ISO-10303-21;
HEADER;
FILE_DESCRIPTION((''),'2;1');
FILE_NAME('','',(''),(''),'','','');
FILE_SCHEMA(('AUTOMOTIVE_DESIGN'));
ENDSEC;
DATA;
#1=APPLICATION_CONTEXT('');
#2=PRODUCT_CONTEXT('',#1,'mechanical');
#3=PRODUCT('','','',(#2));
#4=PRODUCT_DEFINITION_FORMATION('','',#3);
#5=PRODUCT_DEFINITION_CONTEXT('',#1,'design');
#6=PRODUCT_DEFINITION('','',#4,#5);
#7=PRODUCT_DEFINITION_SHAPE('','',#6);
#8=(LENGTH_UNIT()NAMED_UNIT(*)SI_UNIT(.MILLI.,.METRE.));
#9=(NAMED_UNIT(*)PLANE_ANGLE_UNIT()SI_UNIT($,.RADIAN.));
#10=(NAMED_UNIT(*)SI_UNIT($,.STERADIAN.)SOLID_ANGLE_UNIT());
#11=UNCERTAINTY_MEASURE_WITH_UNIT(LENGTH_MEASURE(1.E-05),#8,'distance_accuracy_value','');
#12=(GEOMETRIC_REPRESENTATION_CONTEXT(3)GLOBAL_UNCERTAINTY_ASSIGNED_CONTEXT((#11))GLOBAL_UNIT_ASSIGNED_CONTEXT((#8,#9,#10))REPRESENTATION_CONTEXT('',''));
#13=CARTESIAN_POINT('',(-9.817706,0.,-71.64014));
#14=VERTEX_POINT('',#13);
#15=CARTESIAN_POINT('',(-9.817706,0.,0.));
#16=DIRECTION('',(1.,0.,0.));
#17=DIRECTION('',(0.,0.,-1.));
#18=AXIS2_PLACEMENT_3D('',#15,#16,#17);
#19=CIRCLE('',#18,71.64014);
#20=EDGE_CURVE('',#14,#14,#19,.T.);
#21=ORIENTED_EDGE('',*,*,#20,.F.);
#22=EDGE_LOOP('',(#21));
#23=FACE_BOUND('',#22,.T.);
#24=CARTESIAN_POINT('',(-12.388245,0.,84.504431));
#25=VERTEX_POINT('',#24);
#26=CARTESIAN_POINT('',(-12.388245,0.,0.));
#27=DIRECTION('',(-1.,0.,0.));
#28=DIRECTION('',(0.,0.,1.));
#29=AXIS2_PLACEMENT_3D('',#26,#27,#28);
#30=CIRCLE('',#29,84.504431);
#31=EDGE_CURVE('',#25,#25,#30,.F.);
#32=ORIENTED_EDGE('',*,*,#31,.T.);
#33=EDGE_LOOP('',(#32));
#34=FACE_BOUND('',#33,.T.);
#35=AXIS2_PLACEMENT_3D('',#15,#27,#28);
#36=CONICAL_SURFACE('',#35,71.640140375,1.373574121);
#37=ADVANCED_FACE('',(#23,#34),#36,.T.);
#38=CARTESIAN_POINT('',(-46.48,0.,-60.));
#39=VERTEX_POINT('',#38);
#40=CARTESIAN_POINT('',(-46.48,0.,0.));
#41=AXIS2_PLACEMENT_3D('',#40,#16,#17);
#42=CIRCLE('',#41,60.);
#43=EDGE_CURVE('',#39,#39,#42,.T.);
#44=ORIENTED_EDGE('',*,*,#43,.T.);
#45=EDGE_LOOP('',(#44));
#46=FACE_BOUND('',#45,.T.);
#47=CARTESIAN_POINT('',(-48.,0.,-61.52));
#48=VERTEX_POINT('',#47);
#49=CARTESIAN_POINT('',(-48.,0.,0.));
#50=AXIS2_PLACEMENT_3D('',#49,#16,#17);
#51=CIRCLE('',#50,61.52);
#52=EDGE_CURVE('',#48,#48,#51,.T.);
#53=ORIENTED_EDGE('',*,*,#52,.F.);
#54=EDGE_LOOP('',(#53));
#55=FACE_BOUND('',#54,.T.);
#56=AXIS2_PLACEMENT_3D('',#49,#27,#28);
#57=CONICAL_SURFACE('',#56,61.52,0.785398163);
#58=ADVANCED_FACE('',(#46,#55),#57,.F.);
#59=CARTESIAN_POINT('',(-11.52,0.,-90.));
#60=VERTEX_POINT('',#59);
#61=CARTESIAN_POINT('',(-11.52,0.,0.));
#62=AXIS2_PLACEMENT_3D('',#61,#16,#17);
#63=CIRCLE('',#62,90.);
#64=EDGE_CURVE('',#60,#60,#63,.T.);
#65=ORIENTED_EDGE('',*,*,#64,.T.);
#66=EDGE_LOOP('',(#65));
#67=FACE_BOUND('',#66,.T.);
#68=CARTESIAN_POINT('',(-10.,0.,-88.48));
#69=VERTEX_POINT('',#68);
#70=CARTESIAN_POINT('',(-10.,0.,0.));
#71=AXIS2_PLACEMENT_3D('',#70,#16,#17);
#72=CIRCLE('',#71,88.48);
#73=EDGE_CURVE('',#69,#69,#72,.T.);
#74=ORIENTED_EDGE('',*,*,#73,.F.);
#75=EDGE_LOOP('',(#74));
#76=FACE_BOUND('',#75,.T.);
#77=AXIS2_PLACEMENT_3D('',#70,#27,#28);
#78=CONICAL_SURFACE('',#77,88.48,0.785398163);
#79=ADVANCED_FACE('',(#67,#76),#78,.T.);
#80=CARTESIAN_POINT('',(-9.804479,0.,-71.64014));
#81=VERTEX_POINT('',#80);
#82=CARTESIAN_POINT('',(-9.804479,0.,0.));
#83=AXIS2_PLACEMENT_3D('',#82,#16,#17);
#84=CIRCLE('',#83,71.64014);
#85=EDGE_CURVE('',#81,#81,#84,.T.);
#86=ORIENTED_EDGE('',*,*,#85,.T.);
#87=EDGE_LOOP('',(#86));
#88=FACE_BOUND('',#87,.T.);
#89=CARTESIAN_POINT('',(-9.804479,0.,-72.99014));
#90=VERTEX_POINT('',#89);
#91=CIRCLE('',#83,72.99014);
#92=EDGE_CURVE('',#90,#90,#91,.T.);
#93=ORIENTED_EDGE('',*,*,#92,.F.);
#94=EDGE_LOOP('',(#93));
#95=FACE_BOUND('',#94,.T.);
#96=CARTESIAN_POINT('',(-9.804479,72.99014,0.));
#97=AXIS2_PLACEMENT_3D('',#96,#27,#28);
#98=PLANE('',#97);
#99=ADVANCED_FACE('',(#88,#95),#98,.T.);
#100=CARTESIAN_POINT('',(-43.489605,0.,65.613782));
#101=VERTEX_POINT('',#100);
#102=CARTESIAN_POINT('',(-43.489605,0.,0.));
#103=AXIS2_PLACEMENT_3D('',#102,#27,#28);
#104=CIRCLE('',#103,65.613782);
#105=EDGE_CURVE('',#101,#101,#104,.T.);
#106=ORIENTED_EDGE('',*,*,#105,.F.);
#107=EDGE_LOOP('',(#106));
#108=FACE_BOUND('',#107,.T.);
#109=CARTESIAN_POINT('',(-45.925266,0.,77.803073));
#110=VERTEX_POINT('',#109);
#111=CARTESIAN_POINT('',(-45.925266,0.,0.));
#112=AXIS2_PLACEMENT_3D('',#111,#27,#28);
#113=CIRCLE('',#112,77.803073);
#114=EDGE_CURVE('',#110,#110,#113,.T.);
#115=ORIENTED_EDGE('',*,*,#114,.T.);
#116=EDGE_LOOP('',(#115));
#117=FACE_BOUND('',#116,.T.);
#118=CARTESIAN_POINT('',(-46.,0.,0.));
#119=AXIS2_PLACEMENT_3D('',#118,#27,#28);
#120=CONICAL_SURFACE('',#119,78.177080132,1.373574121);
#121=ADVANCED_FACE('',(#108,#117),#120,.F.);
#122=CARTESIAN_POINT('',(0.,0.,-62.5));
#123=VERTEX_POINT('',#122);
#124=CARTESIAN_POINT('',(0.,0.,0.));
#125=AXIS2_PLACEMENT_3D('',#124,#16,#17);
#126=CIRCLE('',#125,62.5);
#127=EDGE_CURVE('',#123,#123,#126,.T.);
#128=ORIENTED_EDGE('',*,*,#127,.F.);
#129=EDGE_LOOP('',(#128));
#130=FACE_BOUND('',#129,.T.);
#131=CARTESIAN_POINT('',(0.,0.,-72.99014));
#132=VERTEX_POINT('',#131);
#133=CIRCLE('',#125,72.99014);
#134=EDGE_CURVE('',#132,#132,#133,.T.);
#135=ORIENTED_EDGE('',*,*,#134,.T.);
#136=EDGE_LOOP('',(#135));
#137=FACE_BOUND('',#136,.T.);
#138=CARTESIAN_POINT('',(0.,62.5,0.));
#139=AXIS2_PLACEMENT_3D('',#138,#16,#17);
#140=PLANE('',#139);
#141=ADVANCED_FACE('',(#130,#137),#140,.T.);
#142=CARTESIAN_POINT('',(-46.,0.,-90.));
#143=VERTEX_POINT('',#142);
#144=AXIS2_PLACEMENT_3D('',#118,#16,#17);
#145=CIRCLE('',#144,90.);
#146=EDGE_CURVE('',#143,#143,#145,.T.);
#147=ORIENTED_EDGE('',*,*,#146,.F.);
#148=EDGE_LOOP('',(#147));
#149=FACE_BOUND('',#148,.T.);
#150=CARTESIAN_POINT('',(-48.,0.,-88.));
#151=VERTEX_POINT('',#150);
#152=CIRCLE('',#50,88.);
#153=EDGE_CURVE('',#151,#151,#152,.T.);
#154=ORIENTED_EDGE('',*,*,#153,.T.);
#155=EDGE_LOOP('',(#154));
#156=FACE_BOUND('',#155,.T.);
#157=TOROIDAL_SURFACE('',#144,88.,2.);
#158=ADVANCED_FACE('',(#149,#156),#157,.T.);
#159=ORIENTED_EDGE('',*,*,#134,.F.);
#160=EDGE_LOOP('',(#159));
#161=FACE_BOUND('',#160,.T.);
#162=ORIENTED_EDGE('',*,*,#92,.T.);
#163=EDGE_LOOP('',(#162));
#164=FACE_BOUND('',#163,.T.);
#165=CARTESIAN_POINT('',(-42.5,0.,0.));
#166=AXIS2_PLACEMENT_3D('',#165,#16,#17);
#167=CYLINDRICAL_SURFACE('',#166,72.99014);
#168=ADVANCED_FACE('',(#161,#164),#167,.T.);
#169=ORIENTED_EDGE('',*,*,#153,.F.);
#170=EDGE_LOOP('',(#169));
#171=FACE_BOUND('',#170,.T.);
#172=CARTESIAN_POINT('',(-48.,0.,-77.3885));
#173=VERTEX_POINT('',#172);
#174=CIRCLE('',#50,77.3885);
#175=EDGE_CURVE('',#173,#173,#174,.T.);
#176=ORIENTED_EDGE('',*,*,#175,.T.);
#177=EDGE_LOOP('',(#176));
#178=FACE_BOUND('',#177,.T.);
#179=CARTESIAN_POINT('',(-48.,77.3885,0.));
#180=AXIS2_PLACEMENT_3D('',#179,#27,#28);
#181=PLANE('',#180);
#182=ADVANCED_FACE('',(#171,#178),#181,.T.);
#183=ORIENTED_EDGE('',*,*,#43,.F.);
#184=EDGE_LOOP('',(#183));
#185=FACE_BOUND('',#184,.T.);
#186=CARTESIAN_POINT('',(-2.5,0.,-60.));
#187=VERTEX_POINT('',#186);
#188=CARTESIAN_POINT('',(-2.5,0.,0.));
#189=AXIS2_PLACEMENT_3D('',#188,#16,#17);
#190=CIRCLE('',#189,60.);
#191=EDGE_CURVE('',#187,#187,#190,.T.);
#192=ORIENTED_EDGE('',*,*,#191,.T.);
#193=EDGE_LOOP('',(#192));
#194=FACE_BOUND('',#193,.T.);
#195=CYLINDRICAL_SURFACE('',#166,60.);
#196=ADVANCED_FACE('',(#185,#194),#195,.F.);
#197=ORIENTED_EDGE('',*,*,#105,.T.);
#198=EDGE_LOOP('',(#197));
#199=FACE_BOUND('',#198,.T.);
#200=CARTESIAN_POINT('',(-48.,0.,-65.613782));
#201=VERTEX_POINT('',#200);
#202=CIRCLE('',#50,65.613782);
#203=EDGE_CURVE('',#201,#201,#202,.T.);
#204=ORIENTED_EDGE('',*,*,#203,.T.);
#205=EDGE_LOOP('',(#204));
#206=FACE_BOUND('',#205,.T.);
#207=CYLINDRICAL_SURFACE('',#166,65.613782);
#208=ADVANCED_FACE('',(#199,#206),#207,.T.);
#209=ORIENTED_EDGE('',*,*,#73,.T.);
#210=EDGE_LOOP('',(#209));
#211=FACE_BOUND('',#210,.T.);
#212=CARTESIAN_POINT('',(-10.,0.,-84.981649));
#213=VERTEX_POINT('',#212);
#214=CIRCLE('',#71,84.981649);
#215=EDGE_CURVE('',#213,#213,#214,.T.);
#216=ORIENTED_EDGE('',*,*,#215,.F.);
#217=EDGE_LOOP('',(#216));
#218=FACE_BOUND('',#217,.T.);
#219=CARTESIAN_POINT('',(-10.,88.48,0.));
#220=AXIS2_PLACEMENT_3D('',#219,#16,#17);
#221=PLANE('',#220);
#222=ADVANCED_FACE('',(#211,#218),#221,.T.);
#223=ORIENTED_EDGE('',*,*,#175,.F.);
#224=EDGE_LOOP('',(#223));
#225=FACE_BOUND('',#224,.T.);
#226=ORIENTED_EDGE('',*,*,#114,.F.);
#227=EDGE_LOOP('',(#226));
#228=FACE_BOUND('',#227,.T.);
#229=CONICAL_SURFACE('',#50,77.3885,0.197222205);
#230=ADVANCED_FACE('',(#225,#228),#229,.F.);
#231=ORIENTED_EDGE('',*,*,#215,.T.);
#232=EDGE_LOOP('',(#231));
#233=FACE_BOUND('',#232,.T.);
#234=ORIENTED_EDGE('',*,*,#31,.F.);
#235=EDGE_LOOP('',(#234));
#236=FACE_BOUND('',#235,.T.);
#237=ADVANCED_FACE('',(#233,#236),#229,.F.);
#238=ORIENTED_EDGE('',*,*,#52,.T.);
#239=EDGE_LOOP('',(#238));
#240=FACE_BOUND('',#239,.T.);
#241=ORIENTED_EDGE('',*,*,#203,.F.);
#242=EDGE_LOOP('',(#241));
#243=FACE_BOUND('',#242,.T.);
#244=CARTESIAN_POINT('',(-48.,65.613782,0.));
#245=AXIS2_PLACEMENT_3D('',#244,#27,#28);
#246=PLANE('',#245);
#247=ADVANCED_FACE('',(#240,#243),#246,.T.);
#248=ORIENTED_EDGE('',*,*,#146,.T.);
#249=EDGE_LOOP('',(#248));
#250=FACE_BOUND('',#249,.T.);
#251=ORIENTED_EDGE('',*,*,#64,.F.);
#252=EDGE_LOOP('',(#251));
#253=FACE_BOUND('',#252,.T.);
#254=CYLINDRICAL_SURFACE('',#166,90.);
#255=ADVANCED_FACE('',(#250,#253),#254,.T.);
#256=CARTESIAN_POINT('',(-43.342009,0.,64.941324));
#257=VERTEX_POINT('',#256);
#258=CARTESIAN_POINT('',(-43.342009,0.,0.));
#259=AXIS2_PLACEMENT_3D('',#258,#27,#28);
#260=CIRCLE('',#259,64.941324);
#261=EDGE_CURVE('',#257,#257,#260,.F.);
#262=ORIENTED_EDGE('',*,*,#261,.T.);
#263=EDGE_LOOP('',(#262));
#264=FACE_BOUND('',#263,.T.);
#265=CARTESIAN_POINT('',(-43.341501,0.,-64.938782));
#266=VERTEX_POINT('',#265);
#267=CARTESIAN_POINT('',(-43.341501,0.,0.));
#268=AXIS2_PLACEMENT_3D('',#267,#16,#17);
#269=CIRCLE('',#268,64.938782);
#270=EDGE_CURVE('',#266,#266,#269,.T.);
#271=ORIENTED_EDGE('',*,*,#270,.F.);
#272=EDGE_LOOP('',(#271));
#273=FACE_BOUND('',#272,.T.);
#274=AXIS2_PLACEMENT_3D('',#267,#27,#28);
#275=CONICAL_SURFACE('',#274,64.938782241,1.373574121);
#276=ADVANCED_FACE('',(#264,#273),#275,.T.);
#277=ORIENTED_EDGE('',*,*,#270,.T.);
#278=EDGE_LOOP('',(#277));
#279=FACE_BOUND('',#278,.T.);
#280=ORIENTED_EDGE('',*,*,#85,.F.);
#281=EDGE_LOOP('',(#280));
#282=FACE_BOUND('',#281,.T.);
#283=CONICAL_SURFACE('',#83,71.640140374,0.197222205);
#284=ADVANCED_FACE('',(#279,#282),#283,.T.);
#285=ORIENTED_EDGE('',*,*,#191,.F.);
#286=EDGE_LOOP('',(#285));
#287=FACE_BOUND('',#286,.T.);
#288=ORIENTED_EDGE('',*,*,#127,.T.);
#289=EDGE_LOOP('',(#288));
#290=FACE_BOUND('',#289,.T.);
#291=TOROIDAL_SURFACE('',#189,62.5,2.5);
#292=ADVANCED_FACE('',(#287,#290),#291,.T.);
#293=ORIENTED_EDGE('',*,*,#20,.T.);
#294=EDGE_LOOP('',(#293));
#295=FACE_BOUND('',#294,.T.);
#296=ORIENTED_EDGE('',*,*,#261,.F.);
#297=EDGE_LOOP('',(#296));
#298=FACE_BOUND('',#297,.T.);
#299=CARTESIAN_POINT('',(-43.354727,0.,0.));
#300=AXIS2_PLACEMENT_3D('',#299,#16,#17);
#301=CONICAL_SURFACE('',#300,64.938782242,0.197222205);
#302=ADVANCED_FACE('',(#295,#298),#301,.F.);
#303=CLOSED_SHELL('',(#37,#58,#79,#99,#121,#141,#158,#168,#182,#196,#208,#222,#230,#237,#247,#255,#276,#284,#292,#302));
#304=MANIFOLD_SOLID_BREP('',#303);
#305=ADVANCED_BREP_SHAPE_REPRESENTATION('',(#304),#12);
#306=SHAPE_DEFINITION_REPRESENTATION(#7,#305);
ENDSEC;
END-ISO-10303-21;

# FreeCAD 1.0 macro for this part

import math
import FreeCAD as App
import Part
import Sketcher

V = App.Vector
Q = App.Units.Quantity


def add_polygon(sketch, points):
    """Adds a closed chain of lines whose ends are joined by coincident constraints."""
    first, n = sketch.GeometryCount, len(points)
    for a, b in zip(points, points[1:] + points[:1]):
        sketch.addGeometry(Part.LineSegment(App.Vector(*a, 0), App.Vector(*b, 0)), False)
    for i in range(n):
        sketch.addConstraint(Sketcher.Constraint("Coincident", first + i, 2, first + (i + 1) % n, 1))

doc = App.newDocument("Part")
body = doc.addObject("PartDesign::Body", "Body")

# Sketch on XY plane
sketch1 = doc.addObject("Sketcher::SketchObject", "Sketch")
body.addObject(sketch1)
sketch1.AttachmentSupport = (doc.XY_Plane, [""])
sketch1.MapMode = "FlatFace"
sketch1.addGeometry([
    Part.LineSegment(V(-48, 77.4, 0), V(-10, 85, 0)),  # 0
    Part.LineSegment(V(-10, 85, 0), V(-10, 88.5, 0)),  # 1
    Part.LineSegment(V(-10, 88.5, 0), V(-11.5, 90, 0)),  # 2
    Part.LineSegment(V(-11.5, 90, 0), V(-46, 90, 0)),  # 3
    Part.ArcOfCircle(Part.Circle(V(-46, 88, 0), V(0, 0, 1), 2), math.radians(90), math.radians(180)),  # 4
    Part.LineSegment(V(-48, 88, 0), V(-48, 77.4, 0)),  # 5
], False)
sketch1.addConstraint([
    Sketcher.Constraint("Coincident", 0, 2, 1, 1),
    Sketcher.Constraint("Coincident", 1, 2, 2, 1),
    Sketcher.Constraint("Coincident", 2, 2, 3, 1),
    Sketcher.Constraint("Tangent", 3, 2, 4, 1),
    Sketcher.Constraint("Tangent", 4, 2, 5, 1),
    Sketcher.Constraint("Coincident", 5, 2, 0, 1),
    Sketcher.Constraint("Vertical", 1),
    Sketcher.Constraint("Horizontal", 3),
    Sketcher.Constraint("Vertical", 5),
    Sketcher.Constraint("Radius", 4, Q("2 mm")),
    Sketcher.Constraint("Angle", 2, Q("135 deg")),
    Sketcher.Constraint("DistanceX", 4, 3, -1, 1, Q("46 mm")),
    Sketcher.Constraint("DistanceY", -1, 1, 4, 3, Q("88 mm")),
    Sketcher.Constraint("DistanceX", 0, 2, -1, 1, Q("10 mm")),
    Sketcher.Constraint("Angle", 0, Q("11.3 deg")),
    Sketcher.Constraint("DistanceX", 3, 2, 3, 1, Q("34.48 mm")),
    Sketcher.Constraint("DistanceY", 5, 2, 5, 1, Q("10.6115 mm")),
])
revolution = doc.addObject("PartDesign::Revolution", "Revolution")
body.addObject(revolution)
revolution.Profile = sketch1
revolution.ReferenceAxis = (sketch1, ["H_Axis"])
revolution.Angle = 360

# Sketch on XY plane
sketch2 = doc.addObject("Sketcher::SketchObject", "Sketch001")
body.addObject(sketch2)
sketch2.AttachmentSupport = (doc.XY_Plane, [""])
sketch2.MapMode = "FlatFace"
add_polygon(sketch2, [(-12, 85), (-46, 78), (-43, 65), (-10, 72)])  # lines 0-3
sketch2.addConstraint([
    Sketcher.Constraint("Perpendicular", 0, 1),
    Sketcher.Constraint("Perpendicular", 1, 2),
    Sketcher.Constraint("Perpendicular", 2, 3),
    Sketcher.Constraint("DistanceX", 0, 2, -1, 1, Q("46 mm")),
    Sketcher.Constraint("Angle", 0, Q("-168.7 deg")),
    Sketcher.Constraint("Distance", 0, Q("34.2 mm")),
    Sketcher.Constraint("Distance", 1, Q("13.5 mm")),
    Sketcher.Constraint("DistanceY", -1, 1, 0, 2, Q("78.17708 mm")),
])
revolution2 = doc.addObject("PartDesign::Revolution", "Revolution001")
body.addObject(revolution2)
revolution2.Profile = sketch2
revolution2.ReferenceAxis = (sketch2, ["H_Axis"])
revolution2.Angle = 360

# Sketch on XY plane
sketch3 = doc.addObject("Sketcher::SketchObject", "Sketch002")
body.addObject(sketch3)
sketch3.AttachmentSupport = (doc.XY_Plane, [""])
sketch3.MapMode = "FlatFace"
sketch3.addGeometry([
    Part.LineSegment(V(-43.5, 65.6, 0), V(-48, 65.6, 0)),  # 0
    Part.LineSegment(V(-48, 65.6, 0), V(-48, 61.5, 0)),  # 1
    Part.LineSegment(V(-48, 61.5, 0), V(-46.5, 60, 0)),  # 2
    Part.LineSegment(V(-46.5, 60, 0), V(-2.5, 60, 0)),  # 3
    Part.ArcOfCircle(Part.Circle(V(-2.5, 62.5, 0), V(0, 0, 1), 2.5), math.radians(-90), math.radians(0)),  # 4
    Part.LineSegment(V(0, 62.5, 0), V(0, 73, 0)),  # 5
    Part.LineSegment(V(0, 73, 0), V(-9.8, 73, 0)),  # 6
    Part.LineSegment(V(-9.8, 73, 0), V(-9.8, 71.6, 0)),  # 7
    Part.LineSegment(V(-9.8, 71.6, 0), V(-43.3, 64.9, 0)),  # 8
    Part.LineSegment(V(-43.3, 64.9, 0), V(-43.5, 65.6, 0)),  # 9
], False)
sketch3.addConstraint([
    Sketcher.Constraint("Coincident", 0, 2, 1, 1),
    Sketcher.Constraint("Coincident", 1, 2, 2, 1),
    Sketcher.Constraint("Coincident", 2, 2, 3, 1),
    Sketcher.Constraint("Tangent", 3, 2, 4, 1),
    Sketcher.Constraint("Tangent", 4, 2, 5, 1),
    Sketcher.Constraint("Coincident", 5, 2, 6, 1),
    Sketcher.Constraint("Coincident", 6, 2, 7, 1),
    Sketcher.Constraint("Coincident", 7, 2, 8, 1),
    Sketcher.Constraint("Coincident", 8, 2, 9, 1),
    Sketcher.Constraint("Coincident", 9, 2, 0, 1),
    Sketcher.Constraint("Horizontal", 0),
    Sketcher.Constraint("Vertical", 1),
    Sketcher.Constraint("Horizontal", 3),
    Sketcher.Constraint("Vertical", 5),
    Sketcher.Constraint("Horizontal", 6),
    Sketcher.Constraint("Vertical", 7),
    Sketcher.Constraint("PointOnObject", 4, 2, -2),
    Sketcher.Constraint("Perpendicular", 8, 9),
    Sketcher.Constraint("Radius", 4, Q("2.5 mm")),
    Sketcher.Constraint("Angle", 2, Q("-45 deg")),
    Sketcher.Constraint("DistanceX", 0, 2, -1, 1, Q("48 mm")),
    Sketcher.Constraint("DistanceY", -1, 1, 2, 2, Q("60 mm")),
    Sketcher.Constraint("Angle", 8, Q("-168.7 deg")),
    Sketcher.Constraint("Distance", 8, Q("34.2 mm")),
    Sketcher.Constraint("DistanceX", 3, 1, 3, 2, Q("43.98 mm")),
    Sketcher.Constraint("DistanceY", 7, 2, 7, 1, Q("1.35 mm")),
    Sketcher.Constraint("DistanceY", 8, 2, 0, 2, Q("0.675 mm")),
    Sketcher.Constraint("DistanceX", 0, 2, 0, 1, Q("4.523621 mm")),
    Sketcher.Constraint("DistanceY", 5, 1, 5, 2, Q("10.49014 mm")),
])
revolution3 = doc.addObject("PartDesign::Revolution", "Revolution002")
body.addObject(revolution3)
revolution3.Profile = sketch3
revolution3.ReferenceAxis = (sketch3, ["H_Axis"])
revolution3.Angle = 360

doc.recompute()
